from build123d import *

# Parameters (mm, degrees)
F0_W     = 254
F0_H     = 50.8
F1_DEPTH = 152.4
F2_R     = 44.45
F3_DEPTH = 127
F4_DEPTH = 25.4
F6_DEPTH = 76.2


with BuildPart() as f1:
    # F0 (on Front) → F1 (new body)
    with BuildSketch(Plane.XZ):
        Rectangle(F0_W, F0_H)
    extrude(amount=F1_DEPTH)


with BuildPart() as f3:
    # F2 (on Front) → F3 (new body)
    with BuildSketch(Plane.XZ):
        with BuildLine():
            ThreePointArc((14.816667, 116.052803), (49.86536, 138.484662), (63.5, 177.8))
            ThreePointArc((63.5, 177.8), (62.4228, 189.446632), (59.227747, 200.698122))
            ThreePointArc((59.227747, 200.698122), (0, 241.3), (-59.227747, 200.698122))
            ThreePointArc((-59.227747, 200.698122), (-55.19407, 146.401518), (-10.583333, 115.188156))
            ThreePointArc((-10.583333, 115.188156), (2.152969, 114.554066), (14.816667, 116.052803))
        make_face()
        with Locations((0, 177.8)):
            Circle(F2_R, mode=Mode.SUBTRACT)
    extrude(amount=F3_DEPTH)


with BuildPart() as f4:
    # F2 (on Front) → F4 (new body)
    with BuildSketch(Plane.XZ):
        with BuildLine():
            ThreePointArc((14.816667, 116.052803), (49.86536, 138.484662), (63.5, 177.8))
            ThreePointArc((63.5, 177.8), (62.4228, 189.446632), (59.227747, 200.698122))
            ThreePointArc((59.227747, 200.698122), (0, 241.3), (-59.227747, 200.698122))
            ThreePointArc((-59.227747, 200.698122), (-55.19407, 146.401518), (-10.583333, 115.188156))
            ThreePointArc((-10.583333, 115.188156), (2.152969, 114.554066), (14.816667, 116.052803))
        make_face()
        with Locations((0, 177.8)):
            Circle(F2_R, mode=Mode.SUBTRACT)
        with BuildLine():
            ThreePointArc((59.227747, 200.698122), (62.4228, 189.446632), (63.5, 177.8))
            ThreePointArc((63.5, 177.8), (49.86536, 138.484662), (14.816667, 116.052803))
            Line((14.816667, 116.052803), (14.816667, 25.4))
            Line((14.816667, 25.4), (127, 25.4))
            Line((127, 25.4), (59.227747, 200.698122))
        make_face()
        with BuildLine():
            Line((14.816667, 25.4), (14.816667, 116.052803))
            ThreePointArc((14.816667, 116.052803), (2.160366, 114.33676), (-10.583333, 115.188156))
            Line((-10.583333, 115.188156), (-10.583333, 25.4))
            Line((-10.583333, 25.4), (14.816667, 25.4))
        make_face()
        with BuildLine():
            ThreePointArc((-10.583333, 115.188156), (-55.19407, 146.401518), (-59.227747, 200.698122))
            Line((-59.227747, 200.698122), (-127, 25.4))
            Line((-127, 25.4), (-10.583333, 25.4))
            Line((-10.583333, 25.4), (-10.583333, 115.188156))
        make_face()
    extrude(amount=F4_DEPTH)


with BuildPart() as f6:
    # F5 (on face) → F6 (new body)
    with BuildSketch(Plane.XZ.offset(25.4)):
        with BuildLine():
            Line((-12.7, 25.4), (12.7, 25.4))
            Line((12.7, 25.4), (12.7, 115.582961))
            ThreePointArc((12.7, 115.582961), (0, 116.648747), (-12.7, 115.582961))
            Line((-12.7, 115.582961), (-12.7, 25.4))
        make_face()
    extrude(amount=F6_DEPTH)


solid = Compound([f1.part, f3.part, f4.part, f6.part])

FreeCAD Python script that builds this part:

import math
import FreeCAD as App
import Part
import Sketcher
from FreeCAD import Vector
Q = App.Units.Quantity

doc = App.newDocument("Part")
body = doc.addObject("PartDesign::Body", "Body")

sketch1 = doc.addObject("Sketcher::SketchObject", "Sketch")
body.addObject(sketch1)
sketch1.AttachmentSupport = (doc.XZ_Plane, [""])
sketch1.MapMode = "FlatFace"
sketch1.addGeometry([
    Part.LineSegment(Vector(-127, 25, 0), Vector(-127, -25, 0)),
    Part.LineSegment(Vector(-127, -25, 0), Vector(127, -25, 0)),
    Part.LineSegment(Vector(127, -25, 0), Vector(127, 25, 0)),
    Part.LineSegment(Vector(127, 25, 0), Vector(-127, 25, 0)),
], False)
sketch1.addConstraint([
    Sketcher.Constraint("Coincident", 0, 2, 1, 1),
    Sketcher.Constraint("Coincident", 1, 2, 2, 1),
    Sketcher.Constraint("Coincident", 2, 2, 3, 1),
    Sketcher.Constraint("Coincident", 3, 2, 0, 1),
    Sketcher.Constraint("Vertical", 0),
    Sketcher.Constraint("Horizontal", 1),
    Sketcher.Constraint("Vertical", 2),
    Sketcher.Constraint("Horizontal", 3),
    Sketcher.Constraint("Symmetric", 0, 2, 2, 2, -1, 1),
    Sketcher.Constraint("DistanceX", 1, 1, 1, 2, Q("10 in")),
    Sketcher.Constraint("DistanceY", 0, 2, 0, 1, Q("2 in")),
])
pad1 = doc.addObject("PartDesign::Pad", "Pad")
body.addObject(pad1)
pad1.Profile = sketch1
pad1.Length = Q("6 in")
body2 = doc.addObject("PartDesign::Body", "Body001")

sketch2 = doc.addObject("Sketcher::SketchObject", "Sketch001")
body2.addObject(sketch2)
sketch2.AttachmentSupport = (doc.getObject("XZ_Plane001"), [""])
sketch2.MapMode = "FlatFace"
sketch2.addGeometry([
    Part.ArcOfCircle(Part.Circle(Vector(0, 178, 0), Vector(0, 0, 1), 64), math.radians(-77), math.radians(0)),
    Part.ArcOfCircle(Part.Circle(Vector(0, 178, 0), Vector(0, 0, 1), 64), math.radians(0), math.radians(21)),
    Part.ArcOfCircle(Part.Circle(Vector(0, 178, 0), Vector(0, 0, 1), 64), math.radians(21), math.radians(159)),
    Part.ArcOfCircle(Part.Circle(Vector(0, 178, 0), Vector(0, 0, 1), 63), math.radians(159), math.radians(260)),
    Part.ArcOfCircle(Part.Circle(Vector(0, 191, 0), Vector(0, 0, 1), 76), math.radians(-97.65), math.radians(-78.45)),
    Part.Circle(Vector(0, 178, 0), Vector(0, 0, 1), 44),
], False)
sketch2.addConstraint([
    Sketcher.Constraint("Tangent", 0, 2, 1, 1),
    Sketcher.Constraint("Tangent", 1, 2, 2, 1),
    Sketcher.Constraint("Tangent", 2, 2, 3, 1),
    Sketcher.Constraint("Coincident", 3, 2, 4, 1),
    Sketcher.Constraint("Coincident", 4, 2, 0, 1),
    Sketcher.Constraint("Coincident", 2, 3, 0, 3),
    Sketcher.Constraint("Coincident", 5, 3, 0, 3),
    Sketcher.Constraint("Equal", 2, 3),
    Sketcher.Constraint("Symmetric", 1, 2, 2, 2, -2),
    Sketcher.Constraint("Horizontal", 5, 3, 0, 2),
    Sketcher.Constraint("Diameter", 5, Q("3.5 in")),
    Sketcher.Constraint("Radius", 0, Q("2.5 in")),
    Sketcher.Constraint("DistanceY", -1, 1, 0, 3, Q("7.0000001 in")),
    Sketcher.Constraint("DistanceX", 3, 2, 4, 2, Q("1 in")),
    Sketcher.Constraint("Radius", 4, 76.199955),
    Sketcher.Constraint("DistanceX", 4, 3, -1, 1, 0.439469),
    Sketcher.Constraint("DistanceY", -1, 1, 1, 2, 200.698122),
])
pad2 = doc.addObject("PartDesign::Pad", "Pad001")
body2.addObject(pad2)
pad2.Profile = sketch2
pad2.Length = Q("5 in")
body3 = doc.addObject("PartDesign::Body", "Body002")

sketch3 = doc.addObject("Sketcher::SketchObject", "Sketch002")
body3.addObject(sketch3)
sketch3.AttachmentSupport = (doc.getObject("XZ_Plane002"), [""])
sketch3.MapMode = "FlatFace"
sketch3.addGeometry([
    Part.ArcOfCircle(Part.Circle(Vector(0, 178, 0), Vector(0, 0, 1), 64), math.radians(21), math.radians(159)),
    Part.LineSegment(Vector(-59, 201, 0), Vector(-127, 25, 0)),
    Part.LineSegment(Vector(-127, 25, 0), Vector(127, 25, 0)),
    Part.LineSegment(Vector(127, 25, 0), Vector(59, 201, 0)),
    Part.ArcOfCircle(Part.Circle(Vector(0, 178, 0), Vector(0, 0, 1), 63), math.radians(-100), math.radians(-77)),
    Part.ArcOfCircle(Part.Circle(Vector(0, 191, 0), Vector(0, 0, 1), 76), math.radians(-97.65), math.radians(-78.45)),
    Part.Circle(Vector(0, 178, 0), Vector(0, 0, 1), 44),
], False)
sketch3.addConstraint([
    Sketcher.Constraint("Tangent", 0, 2, 1, 1),
    Sketcher.Constraint("Coincident", 1, 2, 2, 1),
    Sketcher.Constraint("Coincident", 2, 2, 3, 1),
    Sketcher.Constraint("Tangent", 3, 2, 0, 1),
    Sketcher.Constraint("Coincident", 4, 1, 5, 1),
    Sketcher.Constraint("Coincident", 5, 2, 4, 2),
    Sketcher.Constraint("Horizontal", 2),
    Sketcher.Constraint("Coincident", 6, 3, 0, 3),
    Sketcher.Constraint("Symmetric", 0, 2, 3, 2, -2),
    Sketcher.Constraint("PointOnObject", 4, 3, -2),
    Sketcher.Constraint("Diameter", 6, Q("3.5 in")),
    Sketcher.Constraint("Radius", 0, Q("2.5 in")),
    Sketcher.Constraint("DistanceX", 2, 1, 2, 2, Q("10 in")),
    Sketcher.Constraint("DistanceY", -1, 1, 0, 3, Q("7 in")),
    Sketcher.Constraint("DistanceY", -1, 1, 1, 2, Q("1 in")),
    Sketcher.Constraint("DistanceX", 4, 1, 5, 2, Q("1 in")),
    Sketcher.Constraint("Radius", 4, 63.499977),
    Sketcher.Constraint("Radius", 5, 76.199955),
    Sketcher.Constraint("DistanceX", 5, 3, -1, 1, 0.439469),
    Sketcher.Constraint("DistanceY", -1, 1, 5, 3, 190.709909),
])
pad3 = doc.addObject("PartDesign::Pad", "Pad002")
body3.addObject(pad3)
pad3.Profile = sketch3
pad3.Length = Q("1 in")
body4 = doc.addObject("PartDesign::Body", "Body003")

sketch4 = doc.addObject("Sketcher::SketchObject", "Sketch003")
body4.addObject(sketch4)
sketch4.AttachmentSupport = (doc.getObject("XZ_Plane003"), [""])
sketch4.MapMode = "FlatFace"
sketch4.AttachmentOffset = App.Placement(Vector(0, 0, 1 * 25.4), App.Rotation())
sketch4.addGeometry([
    Part.LineSegment(Vector(-13, 25, 0), Vector(13, 25, 0)),
    Part.LineSegment(Vector(13, 25, 0), Vector(13, 116, 0)),
    Part.ArcOfCircle(Part.Circle(Vector(0, 40, 0), Vector(0, 0, 1), 76), math.radians(80.41), math.radians(99.59)),
    Part.LineSegment(Vector(-13, 116, 0), Vector(-13, 25, 0)),
], False)
sketch4.addConstraint([
    Sketcher.Constraint("Coincident", 0, 2, 1, 1),
    Sketcher.Constraint("Coincident", 1, 2, 2, 1),
    Sketcher.Constraint("Coincident", 2, 2, 3, 1),
    Sketcher.Constraint("Coincident", 3, 2, 0, 1),
    Sketcher.Constraint("Horizontal", 0),
    Sketcher.Constraint("Vertical", 1),
    Sketcher.Constraint("Vertical", 3),
    Sketcher.Constraint("Symmetric", 1, 2, 2, 2, -2),
    Sketcher.Constraint("DistanceX", 0, 1, 0, 2, Q("1 in")),
    Sketcher.Constraint("DistanceY", -1, 1, 0, 2, Q("1 in")),
    Sketcher.Constraint("Radius", 2, 76.200053),
    Sketcher.Constraint("DistanceY", 1, 1, 1, 2, 90.182961),
])
pad4 = doc.addObject("PartDesign::Pad", "Pad003")
body4.addObject(pad4)
pad4.Profile = sketch4
pad4.Length = Q("3 in")

doc.recompute()
